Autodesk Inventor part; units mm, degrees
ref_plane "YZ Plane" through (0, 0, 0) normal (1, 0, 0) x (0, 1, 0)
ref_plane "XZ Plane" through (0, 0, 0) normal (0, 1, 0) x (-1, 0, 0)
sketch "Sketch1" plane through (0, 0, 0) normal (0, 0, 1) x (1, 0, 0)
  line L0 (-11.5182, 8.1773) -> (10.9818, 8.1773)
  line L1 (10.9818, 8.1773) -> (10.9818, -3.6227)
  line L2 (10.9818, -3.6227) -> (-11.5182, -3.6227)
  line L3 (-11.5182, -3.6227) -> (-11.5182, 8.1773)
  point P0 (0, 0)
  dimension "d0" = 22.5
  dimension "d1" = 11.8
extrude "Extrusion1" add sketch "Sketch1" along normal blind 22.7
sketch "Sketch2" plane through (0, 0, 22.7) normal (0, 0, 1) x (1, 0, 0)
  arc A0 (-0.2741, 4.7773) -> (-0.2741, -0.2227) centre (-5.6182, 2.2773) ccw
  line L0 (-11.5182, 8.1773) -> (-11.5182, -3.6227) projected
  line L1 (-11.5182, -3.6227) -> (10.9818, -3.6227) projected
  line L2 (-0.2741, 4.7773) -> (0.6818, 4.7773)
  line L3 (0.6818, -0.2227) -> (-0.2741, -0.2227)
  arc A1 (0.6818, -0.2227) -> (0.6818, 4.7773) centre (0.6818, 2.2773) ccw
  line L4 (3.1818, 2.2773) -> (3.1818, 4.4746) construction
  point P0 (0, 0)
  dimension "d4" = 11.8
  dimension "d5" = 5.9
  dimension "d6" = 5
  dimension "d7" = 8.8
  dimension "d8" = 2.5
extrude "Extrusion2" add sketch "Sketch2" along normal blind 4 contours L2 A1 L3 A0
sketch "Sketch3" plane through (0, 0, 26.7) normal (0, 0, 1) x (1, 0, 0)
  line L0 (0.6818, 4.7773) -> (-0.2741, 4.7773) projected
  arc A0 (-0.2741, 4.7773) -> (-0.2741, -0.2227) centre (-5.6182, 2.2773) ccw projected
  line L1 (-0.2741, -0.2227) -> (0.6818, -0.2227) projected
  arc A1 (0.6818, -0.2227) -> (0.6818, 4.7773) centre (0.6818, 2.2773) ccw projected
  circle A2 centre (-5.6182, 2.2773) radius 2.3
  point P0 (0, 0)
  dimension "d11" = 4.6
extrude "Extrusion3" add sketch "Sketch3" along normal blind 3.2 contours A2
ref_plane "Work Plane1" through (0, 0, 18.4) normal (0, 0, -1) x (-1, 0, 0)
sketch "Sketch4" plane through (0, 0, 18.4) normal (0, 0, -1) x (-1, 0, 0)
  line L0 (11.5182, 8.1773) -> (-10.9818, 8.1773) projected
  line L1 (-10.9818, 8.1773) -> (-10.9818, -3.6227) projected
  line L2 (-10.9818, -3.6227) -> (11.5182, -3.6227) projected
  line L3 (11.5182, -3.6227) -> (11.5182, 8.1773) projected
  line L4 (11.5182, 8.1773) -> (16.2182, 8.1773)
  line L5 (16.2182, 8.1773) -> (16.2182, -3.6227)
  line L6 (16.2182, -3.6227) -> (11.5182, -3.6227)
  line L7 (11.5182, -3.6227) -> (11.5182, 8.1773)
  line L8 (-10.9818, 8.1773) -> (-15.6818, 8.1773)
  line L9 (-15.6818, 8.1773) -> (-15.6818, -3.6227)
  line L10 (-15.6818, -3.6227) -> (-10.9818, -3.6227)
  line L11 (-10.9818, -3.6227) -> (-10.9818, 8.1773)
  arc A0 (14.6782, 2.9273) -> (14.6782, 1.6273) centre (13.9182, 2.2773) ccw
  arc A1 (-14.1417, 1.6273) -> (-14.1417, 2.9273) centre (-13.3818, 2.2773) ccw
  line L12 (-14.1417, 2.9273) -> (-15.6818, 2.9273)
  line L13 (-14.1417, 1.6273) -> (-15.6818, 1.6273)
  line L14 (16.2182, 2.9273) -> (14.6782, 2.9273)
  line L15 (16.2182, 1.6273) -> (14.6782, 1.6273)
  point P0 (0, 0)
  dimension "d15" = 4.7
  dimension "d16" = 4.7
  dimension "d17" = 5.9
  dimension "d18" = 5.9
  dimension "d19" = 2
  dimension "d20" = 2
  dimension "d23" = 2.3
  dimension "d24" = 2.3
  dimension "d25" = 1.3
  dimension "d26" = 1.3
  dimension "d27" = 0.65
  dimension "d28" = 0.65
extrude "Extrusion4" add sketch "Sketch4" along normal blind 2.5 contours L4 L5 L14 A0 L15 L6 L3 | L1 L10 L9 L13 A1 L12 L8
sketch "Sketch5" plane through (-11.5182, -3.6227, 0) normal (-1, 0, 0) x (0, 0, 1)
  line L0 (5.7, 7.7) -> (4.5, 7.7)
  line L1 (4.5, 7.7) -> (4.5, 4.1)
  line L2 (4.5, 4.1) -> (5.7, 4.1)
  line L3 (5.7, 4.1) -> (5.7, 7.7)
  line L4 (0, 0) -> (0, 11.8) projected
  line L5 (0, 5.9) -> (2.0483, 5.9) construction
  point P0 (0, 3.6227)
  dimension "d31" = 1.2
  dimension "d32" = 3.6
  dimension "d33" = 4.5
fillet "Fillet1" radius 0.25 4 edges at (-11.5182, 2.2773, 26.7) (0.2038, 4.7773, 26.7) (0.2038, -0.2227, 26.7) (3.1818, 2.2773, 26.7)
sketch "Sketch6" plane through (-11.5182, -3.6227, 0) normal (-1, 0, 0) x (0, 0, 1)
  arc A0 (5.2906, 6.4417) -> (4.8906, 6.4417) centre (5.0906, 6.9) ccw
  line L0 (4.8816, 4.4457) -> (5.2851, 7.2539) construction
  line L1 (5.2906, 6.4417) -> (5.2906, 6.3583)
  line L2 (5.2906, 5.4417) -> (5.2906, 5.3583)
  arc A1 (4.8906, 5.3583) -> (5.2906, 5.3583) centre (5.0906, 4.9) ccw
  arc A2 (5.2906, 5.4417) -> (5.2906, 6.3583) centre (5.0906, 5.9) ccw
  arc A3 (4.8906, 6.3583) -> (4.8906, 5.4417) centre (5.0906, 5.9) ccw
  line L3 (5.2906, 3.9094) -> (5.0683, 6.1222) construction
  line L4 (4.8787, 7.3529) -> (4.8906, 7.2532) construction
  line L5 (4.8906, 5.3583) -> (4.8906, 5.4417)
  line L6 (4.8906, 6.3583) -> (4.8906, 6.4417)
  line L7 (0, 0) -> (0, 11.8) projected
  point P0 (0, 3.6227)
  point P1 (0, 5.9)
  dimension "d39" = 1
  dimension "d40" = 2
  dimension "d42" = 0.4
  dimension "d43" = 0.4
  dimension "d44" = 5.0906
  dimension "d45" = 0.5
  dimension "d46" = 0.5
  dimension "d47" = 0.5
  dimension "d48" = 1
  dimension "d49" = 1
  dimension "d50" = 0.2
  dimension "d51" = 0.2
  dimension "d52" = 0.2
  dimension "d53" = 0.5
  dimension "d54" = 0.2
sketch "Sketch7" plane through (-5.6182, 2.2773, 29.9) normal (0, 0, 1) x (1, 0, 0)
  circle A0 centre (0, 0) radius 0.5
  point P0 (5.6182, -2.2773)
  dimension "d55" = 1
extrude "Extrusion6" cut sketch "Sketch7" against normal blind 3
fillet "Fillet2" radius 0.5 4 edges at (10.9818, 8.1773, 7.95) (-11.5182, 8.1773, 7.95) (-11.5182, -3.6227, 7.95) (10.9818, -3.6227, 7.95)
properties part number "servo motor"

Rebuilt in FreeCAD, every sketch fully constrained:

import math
import FreeCAD as App
import Part
import Sketcher
from FreeCAD import Vector
Q = App.Units.Quantity


def edges_at(feature, points):
    """Names of the edges that pass closest to the given points."""
    edges = feature.Shape.Edges
    near = lambda p: min(range(len(edges)), key=lambda i: edges[i].distToShape(Part.Vertex(*p))[0])
    return sorted({f"Edge{near(p) + 1}" for p in points})


def add_polygon(sketch, points):
    """Adds a closed chain of lines whose ends are joined by coincident constraints."""
    first, n = sketch.GeometryCount, len(points)
    for a, b in zip(points, points[1:] + points[:1]):
        sketch.addGeometry(Part.LineSegment(App.Vector(*a, 0), App.Vector(*b, 0)), False)
    for i in range(n):
        sketch.addConstraint(Sketcher.Constraint("Coincident", first + i, 2, first + (i + 1) % n, 1))

doc = App.newDocument("Part")
body = doc.addObject("PartDesign::Body", "Body")

# Sketch on XY plane
sketch1 = body.newObject("Sketcher::SketchObject", "Sketch")
sketch1.AttachmentSupport = (doc.getObject("XY_Plane"), [""])
sketch1.MapMode = "FlatFace"
add_polygon(sketch1, [(11, 8), (-12, 8), (-12, -4), (11, -4)])  # lines 0-3
sketch1.addConstraint(Sketcher.Constraint("Horizontal", 0))
sketch1.addConstraint(Sketcher.Constraint("Vertical", 1))
sketch1.addConstraint(Sketcher.Constraint("Horizontal", 2))
sketch1.addConstraint(Sketcher.Constraint("Vertical", 3))
sketch1.addConstraint(Sketcher.Constraint("DistanceX", 0, 2, 0, 1, Q("22.5 mm")))
sketch1.addConstraint(Sketcher.Constraint("DistanceY", 1, 2, 1, 1, Q("11.8 mm")))
sketch1.addConstraint(Sketcher.Constraint("DistanceX", 0, 2, -1, 1, Q("11.5182 mm")))
sketch1.addConstraint(Sketcher.Constraint("DistanceY", -1, 1, 0, 2, Q("8.1773 mm")))
pad1 = body.newObject("PartDesign::Pad", "Pad")
pad1.Profile = sketch1
pad1.Length = 22.7

# Sketch on XY plane
sketch2 = body.newObject("Sketcher::SketchObject", "Sketch001")
sketch2.AttachmentSupport = (doc.getObject("XY_Plane"), [""])
sketch2.MapMode = "FlatFace"
sketch2.AttachmentOffset = App.Placement(Vector(0, 0, 22.7), App.Rotation())
sketch2.addGeometry(Part.LineSegment(Vector(0.7, 4.8, 0), Vector(-0.3, 4.8, 0)), False)
sketch2.addGeometry(Part.ArcOfCircle(Part.Circle(Vector(-5.6, 2.3, 0), Vector(0, 0, 1), 5.9), math.radians(25), math.radians(335)), False)
sketch2.addGeometry(Part.LineSegment(Vector(-0.3, -0.2, 0), Vector(0.7, -0.2, 0)), False)
sketch2.addGeometry(Part.ArcOfCircle(Part.Circle(Vector(0.7, 2.3, 0), Vector(0, 0, 1), 2.5), math.radians(-90), math.radians(90)), False)
sketch2.addConstraint(Sketcher.Constraint("Coincident", 0, 2, 1, 1))
sketch2.addConstraint(Sketcher.Constraint("Coincident", 1, 2, 2, 1))
sketch2.addConstraint(Sketcher.Constraint("Tangent", 2, 2, 3, 1))
sketch2.addConstraint(Sketcher.Constraint("Tangent", 3, 2, 0, 1))
sketch2.addConstraint(Sketcher.Constraint("Horizontal", 0))
sketch2.addConstraint(Sketcher.Constraint("Horizontal", 2))
sketch2.addConstraint(Sketcher.Constraint("Horizontal", 1, 3, 3, 3))
sketch2.addConstraint(Sketcher.Constraint("Radius", 1, Q("5.9 mm")))
sketch2.addConstraint(Sketcher.Constraint("Radius", 3, Q("2.5 mm")))
sketch2.addConstraint(Sketcher.Constraint("DistanceX", 1, 3, 3, 3, Q("6.3 mm")))
sketch2.addConstraint(Sketcher.Constraint("DistanceX", 0, 2, -1, 1, Q("0.274 mm")))
sketch2.addConstraint(Sketcher.Constraint("DistanceY", -1, 1, 1, 3, Q("2.2773 mm")))
pad2 = body.newObject("PartDesign::Pad", "Pad001")
pad2.Profile = sketch2
pad2.Length = 4

# Sketch on XY plane
sketch3 = body.newObject("Sketcher::SketchObject", "Sketch002")
sketch3.AttachmentSupport = (doc.getObject("XY_Plane"), [""])
sketch3.MapMode = "FlatFace"
sketch3.AttachmentOffset = App.Placement(Vector(0, 0, 26.7), App.Rotation())
sketch3.addGeometry(Part.Circle(Vector(-5.6, 2.3, 0), Vector(0, 0, 1), 2.3), False)
sketch3.addConstraint(Sketcher.Constraint("Diameter", 0, Q("4.6 mm")))
sketch3.addConstraint(Sketcher.Constraint("DistanceX", 0, 3, -1, 1, Q("5.6182 mm")))
sketch3.addConstraint(Sketcher.Constraint("DistanceY", -1, 1, 0, 3, Q("2.2773 mm")))
pad3 = body.newObject("PartDesign::Pad", "Pad002")
pad3.Profile = sketch3
pad3.Length = 3.2

# Sketch on XY plane
sketch4 = body.newObject("Sketcher::SketchObject", "Sketch003")
sketch4.AttachmentSupport = (doc.getObject("XY_Plane"), [""])
sketch4.MapMode = "FlatFace"
sketch4.AttachmentOffset = App.Placement(Vector(0, 0, 18.4), App.Rotation())
sketch4.addGeometry(Part.LineSegment(Vector(-16.2, 8.2, 0), Vector(-11.5, 8.2, 0)), False)
sketch4.addGeometry(Part.LineSegment(Vector(-11.5, 8.2, 0), Vector(-11.5, -3.6, 0)), False)
sketch4.addGeometry(Part.LineSegment(Vector(-11.5, -3.6, 0), Vector(-16.2, -3.6, 0)), False)
sketch4.addGeometry(Part.LineSegment(Vector(-16.2, -3.6, 0), Vector(-16.2, 1.6, 0)), False)
sketch4.addGeometry(Part.LineSegment(Vector(-16.2, 1.6, 0), Vector(-14.7, 1.6, 0)), False)
sketch4.addGeometry(Part.ArcOfCircle(Part.Circle(Vector(-13.9, 2.3, 0), Vector(0, 0, 1), 1), math.radians(-139), math.radians(139)), False)
sketch4.addGeometry(Part.LineSegment(Vector(-14.7, 2.9, 0), Vector(-16.2, 2.9, 0)), False)
sketch4.addGeometry(Part.LineSegment(Vector(-16.2, 2.9, 0), Vector(-16.2, 8.2, 0)), False)
sketch4.addGeometry(Part.LineSegment(Vector(11, -3.6, 0), Vector(11, 8.2, 0)), False)
sketch4.addGeometry(Part.LineSegment(Vector(11, 8.2, 0), Vector(15.7, 8.2, 0)), False)
sketch4.addGeometry(Part.LineSegment(Vector(15.7, 8.2, 0), Vector(15.7, 2.9, 0)), False)
sketch4.addGeometry(Part.LineSegment(Vector(15.7, 2.9, 0), Vector(14.1, 2.9, 0)), False)
sketch4.addGeometry(Part.ArcOfCircle(Part.Circle(Vector(13.4, 2.3, 0), Vector(0, 0, 1), 1), math.radians(41), math.radians(319)), False)
sketch4.addGeometry(Part.LineSegment(Vector(14.1, 1.6, 0), Vector(15.7, 1.6, 0)), False)
sketch4.addGeometry(Part.LineSegment(Vector(15.7, 1.6, 0), Vector(15.7, -3.6, 0)), False)
sketch4.addGeometry(Part.LineSegment(Vector(15.7, -3.6, 0), Vector(11, -3.6, 0)), False)
sketch4.addConstraint(Sketcher.Constraint("Coincident", 0, 2, 1, 1))
sketch4.addConstraint(Sketcher.Constraint("Coincident", 1, 2, 2, 1))
sketch4.addConstraint(Sketcher.Constraint("Coincident", 2, 2, 3, 1))
sketch4.addConstraint(Sketcher.Constraint("Coincident", 3, 2, 4, 1))
sketch4.addConstraint(Sketcher.Constraint("Coincident", 4, 2, 5, 1))
sketch4.addConstraint(Sketcher.Constraint("Coincident", 5, 2, 6, 1))
sketch4.addConstraint(Sketcher.Constraint("Coincident", 6, 2, 7, 1))
sketch4.addConstraint(Sketcher.Constraint("Coincident", 7, 2, 0, 1))
sketch4.addConstraint(Sketcher.Constraint("Coincident", 8, 2, 9, 1))
sketch4.addConstraint(Sketcher.Constraint("Coincident", 9, 2, 10, 1))
sketch4.addConstraint(Sketcher.Constraint("Coincident", 10, 2, 11, 1))
sketch4.addConstraint(Sketcher.Constraint("Coincident", 11, 2, 12, 1))
sketch4.addConstraint(Sketcher.Constraint("Coincident", 12, 2, 13, 1))
sketch4.addConstraint(Sketcher.Constraint("Coincident", 13, 2, 14, 1))
sketch4.addConstraint(Sketcher.Constraint("Coincident", 14, 2, 15, 1))
sketch4.addConstraint(Sketcher.Constraint("Coincident", 15, 2, 8, 1))
sketch4.addConstraint(Sketcher.Constraint("Horizontal", 0))
sketch4.addConstraint(Sketcher.Constraint("Vertical", 1))
sketch4.addConstraint(Sketcher.Constraint("Horizontal", 2))
sketch4.addConstraint(Sketcher.Constraint("Vertical", 3))
sketch4.addConstraint(Sketcher.Constraint("Horizontal", 4))
sketch4.addConstraint(Sketcher.Constraint("Horizontal", 6))
sketch4.addConstraint(Sketcher.Constraint("Vertical", 7))
sketch4.addConstraint(Sketcher.Constraint("Vertical", 8))
sketch4.addConstraint(Sketcher.Constraint("Horizontal", 9))
sketch4.addConstraint(Sketcher.Constraint("Vertical", 10))
sketch4.addConstraint(Sketcher.Constraint("Horizontal", 11))
sketch4.addConstraint(Sketcher.Constraint("Horizontal", 13))
sketch4.addConstraint(Sketcher.Constraint("Vertical", 14))
sketch4.addConstraint(Sketcher.Constraint("Horizontal", 15))
sketch4.addConstraint(Sketcher.Constraint("Equal", 5, 12))
sketch4.addConstraint(Sketcher.Constraint("Horizontal", 5, 3, 12, 3))
sketch4.addConstraint(Sketcher.Constraint("Horizontal", 7, 2, 8, 2))
sketch4.addConstraint(Sketcher.Constraint("Horizontal", 6, 2, 10, 2))
sketch4.addConstraint(Sketcher.Constraint("Horizontal", 4, 2, 12, 2))
sketch4.addConstraint(Sketcher.Constraint("Horizontal", 2, 2, 14, 2))
sketch4.addConstraint(Sketcher.Constraint("Vertical", 4, 2, 5, 2))
sketch4.addConstraint(Sketcher.Constraint("Vertical", 3, 2, 6, 2))
sketch4.addConstraint(Sketcher.Constraint("Vertical", 10, 2, 13, 2))
sketch4.addConstraint(Sketcher.Constraint("Equal", 2, 9))
sketch4.addConstraint(Sketcher.Constraint("Equal", 6, 11))
sketch4.addConstraint(Sketcher.Constraint("Equal", 3, 7))
sketch4.addConstraint(Sketcher.Constraint("Radius", 5, Q("1 mm")))
sketch4.addConstraint(Sketcher.Constraint("DistanceX", 0, 1, 0, 2, Q("4.7 mm")))
sketch4.addConstraint(Sketcher.Constraint("DistanceY", 5, 3, 0, 2, Q("5.9 mm")))
sketch4.addConstraint(Sketcher.Constraint("DistanceX", 2, 2, 5, 3, Q("2.3 mm")))
sketch4.addConstraint(Sketcher.Constraint("DistanceY", 4, 2, 5, 2, Q("1.3 mm")))
sketch4.addConstraint(Sketcher.Constraint("DistanceX", 5, 3, 12, 3, Q("27.3 mm")))
sketch4.addConstraint(Sketcher.Constraint("DistanceX", 5, 3, -1, 1, Q("13.9182 mm")))
sketch4.addConstraint(Sketcher.Constraint("DistanceY", -1, 1, 5, 3, Q("2.2773 mm")))
pad4 = body.newObject("PartDesign::Pad", "Pad003")
pad4.Profile = sketch4
pad4.Length = 2.5
pad4.Reversed = True
doc.recompute()

fillet = body.newObject("PartDesign::Fillet", "Fillet")
fillet.Base = (pad4, edges_at(pad4, [
    (-11.518, 2.277, 26.7),
    (0.204, 4.777, 26.7),
    (0.204, -0.223, 26.7),
    (3.182, 2.277, 26.7),
]))
fillet.Radius = 0.25

# Sketch on XY plane
sketch5 = body.newObject("Sketcher::SketchObject", "Sketch004")
sketch5.AttachmentSupport = (doc.getObject("XY_Plane"), [""])
sketch5.MapMode = "FlatFace"
sketch5.AttachmentOffset = App.Placement(Vector(0, 0, 29.9), App.Rotation())
sketch5.addGeometry(Part.Circle(Vector(-5.6, 2.3, 0), Vector(0, 0, 1), 0.5), False)
sketch5.addConstraint(Sketcher.Constraint("Diameter", 0, Q("1 mm")))
sketch5.addConstraint(Sketcher.Constraint("DistanceX", 0, 3, -1, 1, Q("5.6182 mm")))
sketch5.addConstraint(Sketcher.Constraint("DistanceY", -1, 1, 0, 3, Q("2.2773 mm")))
pocket1 = body.newObject("PartDesign::Pocket", "Pocket")
pocket1.Profile = sketch5
pocket1.Length = 3
doc.recompute()

fillet2 = body.newObject("PartDesign::Fillet", "Fillet001")
fillet2.Base = (pocket1, edges_at(pocket1, [
    (10.982, 8.177, 7.95),
    (-11.518, 8.177, 7.95),
    (-11.518, -3.623, 7.95),
    (10.982, -3.623, 7.95),
]))
fillet2.Radius = 0.5

doc.recompute()
